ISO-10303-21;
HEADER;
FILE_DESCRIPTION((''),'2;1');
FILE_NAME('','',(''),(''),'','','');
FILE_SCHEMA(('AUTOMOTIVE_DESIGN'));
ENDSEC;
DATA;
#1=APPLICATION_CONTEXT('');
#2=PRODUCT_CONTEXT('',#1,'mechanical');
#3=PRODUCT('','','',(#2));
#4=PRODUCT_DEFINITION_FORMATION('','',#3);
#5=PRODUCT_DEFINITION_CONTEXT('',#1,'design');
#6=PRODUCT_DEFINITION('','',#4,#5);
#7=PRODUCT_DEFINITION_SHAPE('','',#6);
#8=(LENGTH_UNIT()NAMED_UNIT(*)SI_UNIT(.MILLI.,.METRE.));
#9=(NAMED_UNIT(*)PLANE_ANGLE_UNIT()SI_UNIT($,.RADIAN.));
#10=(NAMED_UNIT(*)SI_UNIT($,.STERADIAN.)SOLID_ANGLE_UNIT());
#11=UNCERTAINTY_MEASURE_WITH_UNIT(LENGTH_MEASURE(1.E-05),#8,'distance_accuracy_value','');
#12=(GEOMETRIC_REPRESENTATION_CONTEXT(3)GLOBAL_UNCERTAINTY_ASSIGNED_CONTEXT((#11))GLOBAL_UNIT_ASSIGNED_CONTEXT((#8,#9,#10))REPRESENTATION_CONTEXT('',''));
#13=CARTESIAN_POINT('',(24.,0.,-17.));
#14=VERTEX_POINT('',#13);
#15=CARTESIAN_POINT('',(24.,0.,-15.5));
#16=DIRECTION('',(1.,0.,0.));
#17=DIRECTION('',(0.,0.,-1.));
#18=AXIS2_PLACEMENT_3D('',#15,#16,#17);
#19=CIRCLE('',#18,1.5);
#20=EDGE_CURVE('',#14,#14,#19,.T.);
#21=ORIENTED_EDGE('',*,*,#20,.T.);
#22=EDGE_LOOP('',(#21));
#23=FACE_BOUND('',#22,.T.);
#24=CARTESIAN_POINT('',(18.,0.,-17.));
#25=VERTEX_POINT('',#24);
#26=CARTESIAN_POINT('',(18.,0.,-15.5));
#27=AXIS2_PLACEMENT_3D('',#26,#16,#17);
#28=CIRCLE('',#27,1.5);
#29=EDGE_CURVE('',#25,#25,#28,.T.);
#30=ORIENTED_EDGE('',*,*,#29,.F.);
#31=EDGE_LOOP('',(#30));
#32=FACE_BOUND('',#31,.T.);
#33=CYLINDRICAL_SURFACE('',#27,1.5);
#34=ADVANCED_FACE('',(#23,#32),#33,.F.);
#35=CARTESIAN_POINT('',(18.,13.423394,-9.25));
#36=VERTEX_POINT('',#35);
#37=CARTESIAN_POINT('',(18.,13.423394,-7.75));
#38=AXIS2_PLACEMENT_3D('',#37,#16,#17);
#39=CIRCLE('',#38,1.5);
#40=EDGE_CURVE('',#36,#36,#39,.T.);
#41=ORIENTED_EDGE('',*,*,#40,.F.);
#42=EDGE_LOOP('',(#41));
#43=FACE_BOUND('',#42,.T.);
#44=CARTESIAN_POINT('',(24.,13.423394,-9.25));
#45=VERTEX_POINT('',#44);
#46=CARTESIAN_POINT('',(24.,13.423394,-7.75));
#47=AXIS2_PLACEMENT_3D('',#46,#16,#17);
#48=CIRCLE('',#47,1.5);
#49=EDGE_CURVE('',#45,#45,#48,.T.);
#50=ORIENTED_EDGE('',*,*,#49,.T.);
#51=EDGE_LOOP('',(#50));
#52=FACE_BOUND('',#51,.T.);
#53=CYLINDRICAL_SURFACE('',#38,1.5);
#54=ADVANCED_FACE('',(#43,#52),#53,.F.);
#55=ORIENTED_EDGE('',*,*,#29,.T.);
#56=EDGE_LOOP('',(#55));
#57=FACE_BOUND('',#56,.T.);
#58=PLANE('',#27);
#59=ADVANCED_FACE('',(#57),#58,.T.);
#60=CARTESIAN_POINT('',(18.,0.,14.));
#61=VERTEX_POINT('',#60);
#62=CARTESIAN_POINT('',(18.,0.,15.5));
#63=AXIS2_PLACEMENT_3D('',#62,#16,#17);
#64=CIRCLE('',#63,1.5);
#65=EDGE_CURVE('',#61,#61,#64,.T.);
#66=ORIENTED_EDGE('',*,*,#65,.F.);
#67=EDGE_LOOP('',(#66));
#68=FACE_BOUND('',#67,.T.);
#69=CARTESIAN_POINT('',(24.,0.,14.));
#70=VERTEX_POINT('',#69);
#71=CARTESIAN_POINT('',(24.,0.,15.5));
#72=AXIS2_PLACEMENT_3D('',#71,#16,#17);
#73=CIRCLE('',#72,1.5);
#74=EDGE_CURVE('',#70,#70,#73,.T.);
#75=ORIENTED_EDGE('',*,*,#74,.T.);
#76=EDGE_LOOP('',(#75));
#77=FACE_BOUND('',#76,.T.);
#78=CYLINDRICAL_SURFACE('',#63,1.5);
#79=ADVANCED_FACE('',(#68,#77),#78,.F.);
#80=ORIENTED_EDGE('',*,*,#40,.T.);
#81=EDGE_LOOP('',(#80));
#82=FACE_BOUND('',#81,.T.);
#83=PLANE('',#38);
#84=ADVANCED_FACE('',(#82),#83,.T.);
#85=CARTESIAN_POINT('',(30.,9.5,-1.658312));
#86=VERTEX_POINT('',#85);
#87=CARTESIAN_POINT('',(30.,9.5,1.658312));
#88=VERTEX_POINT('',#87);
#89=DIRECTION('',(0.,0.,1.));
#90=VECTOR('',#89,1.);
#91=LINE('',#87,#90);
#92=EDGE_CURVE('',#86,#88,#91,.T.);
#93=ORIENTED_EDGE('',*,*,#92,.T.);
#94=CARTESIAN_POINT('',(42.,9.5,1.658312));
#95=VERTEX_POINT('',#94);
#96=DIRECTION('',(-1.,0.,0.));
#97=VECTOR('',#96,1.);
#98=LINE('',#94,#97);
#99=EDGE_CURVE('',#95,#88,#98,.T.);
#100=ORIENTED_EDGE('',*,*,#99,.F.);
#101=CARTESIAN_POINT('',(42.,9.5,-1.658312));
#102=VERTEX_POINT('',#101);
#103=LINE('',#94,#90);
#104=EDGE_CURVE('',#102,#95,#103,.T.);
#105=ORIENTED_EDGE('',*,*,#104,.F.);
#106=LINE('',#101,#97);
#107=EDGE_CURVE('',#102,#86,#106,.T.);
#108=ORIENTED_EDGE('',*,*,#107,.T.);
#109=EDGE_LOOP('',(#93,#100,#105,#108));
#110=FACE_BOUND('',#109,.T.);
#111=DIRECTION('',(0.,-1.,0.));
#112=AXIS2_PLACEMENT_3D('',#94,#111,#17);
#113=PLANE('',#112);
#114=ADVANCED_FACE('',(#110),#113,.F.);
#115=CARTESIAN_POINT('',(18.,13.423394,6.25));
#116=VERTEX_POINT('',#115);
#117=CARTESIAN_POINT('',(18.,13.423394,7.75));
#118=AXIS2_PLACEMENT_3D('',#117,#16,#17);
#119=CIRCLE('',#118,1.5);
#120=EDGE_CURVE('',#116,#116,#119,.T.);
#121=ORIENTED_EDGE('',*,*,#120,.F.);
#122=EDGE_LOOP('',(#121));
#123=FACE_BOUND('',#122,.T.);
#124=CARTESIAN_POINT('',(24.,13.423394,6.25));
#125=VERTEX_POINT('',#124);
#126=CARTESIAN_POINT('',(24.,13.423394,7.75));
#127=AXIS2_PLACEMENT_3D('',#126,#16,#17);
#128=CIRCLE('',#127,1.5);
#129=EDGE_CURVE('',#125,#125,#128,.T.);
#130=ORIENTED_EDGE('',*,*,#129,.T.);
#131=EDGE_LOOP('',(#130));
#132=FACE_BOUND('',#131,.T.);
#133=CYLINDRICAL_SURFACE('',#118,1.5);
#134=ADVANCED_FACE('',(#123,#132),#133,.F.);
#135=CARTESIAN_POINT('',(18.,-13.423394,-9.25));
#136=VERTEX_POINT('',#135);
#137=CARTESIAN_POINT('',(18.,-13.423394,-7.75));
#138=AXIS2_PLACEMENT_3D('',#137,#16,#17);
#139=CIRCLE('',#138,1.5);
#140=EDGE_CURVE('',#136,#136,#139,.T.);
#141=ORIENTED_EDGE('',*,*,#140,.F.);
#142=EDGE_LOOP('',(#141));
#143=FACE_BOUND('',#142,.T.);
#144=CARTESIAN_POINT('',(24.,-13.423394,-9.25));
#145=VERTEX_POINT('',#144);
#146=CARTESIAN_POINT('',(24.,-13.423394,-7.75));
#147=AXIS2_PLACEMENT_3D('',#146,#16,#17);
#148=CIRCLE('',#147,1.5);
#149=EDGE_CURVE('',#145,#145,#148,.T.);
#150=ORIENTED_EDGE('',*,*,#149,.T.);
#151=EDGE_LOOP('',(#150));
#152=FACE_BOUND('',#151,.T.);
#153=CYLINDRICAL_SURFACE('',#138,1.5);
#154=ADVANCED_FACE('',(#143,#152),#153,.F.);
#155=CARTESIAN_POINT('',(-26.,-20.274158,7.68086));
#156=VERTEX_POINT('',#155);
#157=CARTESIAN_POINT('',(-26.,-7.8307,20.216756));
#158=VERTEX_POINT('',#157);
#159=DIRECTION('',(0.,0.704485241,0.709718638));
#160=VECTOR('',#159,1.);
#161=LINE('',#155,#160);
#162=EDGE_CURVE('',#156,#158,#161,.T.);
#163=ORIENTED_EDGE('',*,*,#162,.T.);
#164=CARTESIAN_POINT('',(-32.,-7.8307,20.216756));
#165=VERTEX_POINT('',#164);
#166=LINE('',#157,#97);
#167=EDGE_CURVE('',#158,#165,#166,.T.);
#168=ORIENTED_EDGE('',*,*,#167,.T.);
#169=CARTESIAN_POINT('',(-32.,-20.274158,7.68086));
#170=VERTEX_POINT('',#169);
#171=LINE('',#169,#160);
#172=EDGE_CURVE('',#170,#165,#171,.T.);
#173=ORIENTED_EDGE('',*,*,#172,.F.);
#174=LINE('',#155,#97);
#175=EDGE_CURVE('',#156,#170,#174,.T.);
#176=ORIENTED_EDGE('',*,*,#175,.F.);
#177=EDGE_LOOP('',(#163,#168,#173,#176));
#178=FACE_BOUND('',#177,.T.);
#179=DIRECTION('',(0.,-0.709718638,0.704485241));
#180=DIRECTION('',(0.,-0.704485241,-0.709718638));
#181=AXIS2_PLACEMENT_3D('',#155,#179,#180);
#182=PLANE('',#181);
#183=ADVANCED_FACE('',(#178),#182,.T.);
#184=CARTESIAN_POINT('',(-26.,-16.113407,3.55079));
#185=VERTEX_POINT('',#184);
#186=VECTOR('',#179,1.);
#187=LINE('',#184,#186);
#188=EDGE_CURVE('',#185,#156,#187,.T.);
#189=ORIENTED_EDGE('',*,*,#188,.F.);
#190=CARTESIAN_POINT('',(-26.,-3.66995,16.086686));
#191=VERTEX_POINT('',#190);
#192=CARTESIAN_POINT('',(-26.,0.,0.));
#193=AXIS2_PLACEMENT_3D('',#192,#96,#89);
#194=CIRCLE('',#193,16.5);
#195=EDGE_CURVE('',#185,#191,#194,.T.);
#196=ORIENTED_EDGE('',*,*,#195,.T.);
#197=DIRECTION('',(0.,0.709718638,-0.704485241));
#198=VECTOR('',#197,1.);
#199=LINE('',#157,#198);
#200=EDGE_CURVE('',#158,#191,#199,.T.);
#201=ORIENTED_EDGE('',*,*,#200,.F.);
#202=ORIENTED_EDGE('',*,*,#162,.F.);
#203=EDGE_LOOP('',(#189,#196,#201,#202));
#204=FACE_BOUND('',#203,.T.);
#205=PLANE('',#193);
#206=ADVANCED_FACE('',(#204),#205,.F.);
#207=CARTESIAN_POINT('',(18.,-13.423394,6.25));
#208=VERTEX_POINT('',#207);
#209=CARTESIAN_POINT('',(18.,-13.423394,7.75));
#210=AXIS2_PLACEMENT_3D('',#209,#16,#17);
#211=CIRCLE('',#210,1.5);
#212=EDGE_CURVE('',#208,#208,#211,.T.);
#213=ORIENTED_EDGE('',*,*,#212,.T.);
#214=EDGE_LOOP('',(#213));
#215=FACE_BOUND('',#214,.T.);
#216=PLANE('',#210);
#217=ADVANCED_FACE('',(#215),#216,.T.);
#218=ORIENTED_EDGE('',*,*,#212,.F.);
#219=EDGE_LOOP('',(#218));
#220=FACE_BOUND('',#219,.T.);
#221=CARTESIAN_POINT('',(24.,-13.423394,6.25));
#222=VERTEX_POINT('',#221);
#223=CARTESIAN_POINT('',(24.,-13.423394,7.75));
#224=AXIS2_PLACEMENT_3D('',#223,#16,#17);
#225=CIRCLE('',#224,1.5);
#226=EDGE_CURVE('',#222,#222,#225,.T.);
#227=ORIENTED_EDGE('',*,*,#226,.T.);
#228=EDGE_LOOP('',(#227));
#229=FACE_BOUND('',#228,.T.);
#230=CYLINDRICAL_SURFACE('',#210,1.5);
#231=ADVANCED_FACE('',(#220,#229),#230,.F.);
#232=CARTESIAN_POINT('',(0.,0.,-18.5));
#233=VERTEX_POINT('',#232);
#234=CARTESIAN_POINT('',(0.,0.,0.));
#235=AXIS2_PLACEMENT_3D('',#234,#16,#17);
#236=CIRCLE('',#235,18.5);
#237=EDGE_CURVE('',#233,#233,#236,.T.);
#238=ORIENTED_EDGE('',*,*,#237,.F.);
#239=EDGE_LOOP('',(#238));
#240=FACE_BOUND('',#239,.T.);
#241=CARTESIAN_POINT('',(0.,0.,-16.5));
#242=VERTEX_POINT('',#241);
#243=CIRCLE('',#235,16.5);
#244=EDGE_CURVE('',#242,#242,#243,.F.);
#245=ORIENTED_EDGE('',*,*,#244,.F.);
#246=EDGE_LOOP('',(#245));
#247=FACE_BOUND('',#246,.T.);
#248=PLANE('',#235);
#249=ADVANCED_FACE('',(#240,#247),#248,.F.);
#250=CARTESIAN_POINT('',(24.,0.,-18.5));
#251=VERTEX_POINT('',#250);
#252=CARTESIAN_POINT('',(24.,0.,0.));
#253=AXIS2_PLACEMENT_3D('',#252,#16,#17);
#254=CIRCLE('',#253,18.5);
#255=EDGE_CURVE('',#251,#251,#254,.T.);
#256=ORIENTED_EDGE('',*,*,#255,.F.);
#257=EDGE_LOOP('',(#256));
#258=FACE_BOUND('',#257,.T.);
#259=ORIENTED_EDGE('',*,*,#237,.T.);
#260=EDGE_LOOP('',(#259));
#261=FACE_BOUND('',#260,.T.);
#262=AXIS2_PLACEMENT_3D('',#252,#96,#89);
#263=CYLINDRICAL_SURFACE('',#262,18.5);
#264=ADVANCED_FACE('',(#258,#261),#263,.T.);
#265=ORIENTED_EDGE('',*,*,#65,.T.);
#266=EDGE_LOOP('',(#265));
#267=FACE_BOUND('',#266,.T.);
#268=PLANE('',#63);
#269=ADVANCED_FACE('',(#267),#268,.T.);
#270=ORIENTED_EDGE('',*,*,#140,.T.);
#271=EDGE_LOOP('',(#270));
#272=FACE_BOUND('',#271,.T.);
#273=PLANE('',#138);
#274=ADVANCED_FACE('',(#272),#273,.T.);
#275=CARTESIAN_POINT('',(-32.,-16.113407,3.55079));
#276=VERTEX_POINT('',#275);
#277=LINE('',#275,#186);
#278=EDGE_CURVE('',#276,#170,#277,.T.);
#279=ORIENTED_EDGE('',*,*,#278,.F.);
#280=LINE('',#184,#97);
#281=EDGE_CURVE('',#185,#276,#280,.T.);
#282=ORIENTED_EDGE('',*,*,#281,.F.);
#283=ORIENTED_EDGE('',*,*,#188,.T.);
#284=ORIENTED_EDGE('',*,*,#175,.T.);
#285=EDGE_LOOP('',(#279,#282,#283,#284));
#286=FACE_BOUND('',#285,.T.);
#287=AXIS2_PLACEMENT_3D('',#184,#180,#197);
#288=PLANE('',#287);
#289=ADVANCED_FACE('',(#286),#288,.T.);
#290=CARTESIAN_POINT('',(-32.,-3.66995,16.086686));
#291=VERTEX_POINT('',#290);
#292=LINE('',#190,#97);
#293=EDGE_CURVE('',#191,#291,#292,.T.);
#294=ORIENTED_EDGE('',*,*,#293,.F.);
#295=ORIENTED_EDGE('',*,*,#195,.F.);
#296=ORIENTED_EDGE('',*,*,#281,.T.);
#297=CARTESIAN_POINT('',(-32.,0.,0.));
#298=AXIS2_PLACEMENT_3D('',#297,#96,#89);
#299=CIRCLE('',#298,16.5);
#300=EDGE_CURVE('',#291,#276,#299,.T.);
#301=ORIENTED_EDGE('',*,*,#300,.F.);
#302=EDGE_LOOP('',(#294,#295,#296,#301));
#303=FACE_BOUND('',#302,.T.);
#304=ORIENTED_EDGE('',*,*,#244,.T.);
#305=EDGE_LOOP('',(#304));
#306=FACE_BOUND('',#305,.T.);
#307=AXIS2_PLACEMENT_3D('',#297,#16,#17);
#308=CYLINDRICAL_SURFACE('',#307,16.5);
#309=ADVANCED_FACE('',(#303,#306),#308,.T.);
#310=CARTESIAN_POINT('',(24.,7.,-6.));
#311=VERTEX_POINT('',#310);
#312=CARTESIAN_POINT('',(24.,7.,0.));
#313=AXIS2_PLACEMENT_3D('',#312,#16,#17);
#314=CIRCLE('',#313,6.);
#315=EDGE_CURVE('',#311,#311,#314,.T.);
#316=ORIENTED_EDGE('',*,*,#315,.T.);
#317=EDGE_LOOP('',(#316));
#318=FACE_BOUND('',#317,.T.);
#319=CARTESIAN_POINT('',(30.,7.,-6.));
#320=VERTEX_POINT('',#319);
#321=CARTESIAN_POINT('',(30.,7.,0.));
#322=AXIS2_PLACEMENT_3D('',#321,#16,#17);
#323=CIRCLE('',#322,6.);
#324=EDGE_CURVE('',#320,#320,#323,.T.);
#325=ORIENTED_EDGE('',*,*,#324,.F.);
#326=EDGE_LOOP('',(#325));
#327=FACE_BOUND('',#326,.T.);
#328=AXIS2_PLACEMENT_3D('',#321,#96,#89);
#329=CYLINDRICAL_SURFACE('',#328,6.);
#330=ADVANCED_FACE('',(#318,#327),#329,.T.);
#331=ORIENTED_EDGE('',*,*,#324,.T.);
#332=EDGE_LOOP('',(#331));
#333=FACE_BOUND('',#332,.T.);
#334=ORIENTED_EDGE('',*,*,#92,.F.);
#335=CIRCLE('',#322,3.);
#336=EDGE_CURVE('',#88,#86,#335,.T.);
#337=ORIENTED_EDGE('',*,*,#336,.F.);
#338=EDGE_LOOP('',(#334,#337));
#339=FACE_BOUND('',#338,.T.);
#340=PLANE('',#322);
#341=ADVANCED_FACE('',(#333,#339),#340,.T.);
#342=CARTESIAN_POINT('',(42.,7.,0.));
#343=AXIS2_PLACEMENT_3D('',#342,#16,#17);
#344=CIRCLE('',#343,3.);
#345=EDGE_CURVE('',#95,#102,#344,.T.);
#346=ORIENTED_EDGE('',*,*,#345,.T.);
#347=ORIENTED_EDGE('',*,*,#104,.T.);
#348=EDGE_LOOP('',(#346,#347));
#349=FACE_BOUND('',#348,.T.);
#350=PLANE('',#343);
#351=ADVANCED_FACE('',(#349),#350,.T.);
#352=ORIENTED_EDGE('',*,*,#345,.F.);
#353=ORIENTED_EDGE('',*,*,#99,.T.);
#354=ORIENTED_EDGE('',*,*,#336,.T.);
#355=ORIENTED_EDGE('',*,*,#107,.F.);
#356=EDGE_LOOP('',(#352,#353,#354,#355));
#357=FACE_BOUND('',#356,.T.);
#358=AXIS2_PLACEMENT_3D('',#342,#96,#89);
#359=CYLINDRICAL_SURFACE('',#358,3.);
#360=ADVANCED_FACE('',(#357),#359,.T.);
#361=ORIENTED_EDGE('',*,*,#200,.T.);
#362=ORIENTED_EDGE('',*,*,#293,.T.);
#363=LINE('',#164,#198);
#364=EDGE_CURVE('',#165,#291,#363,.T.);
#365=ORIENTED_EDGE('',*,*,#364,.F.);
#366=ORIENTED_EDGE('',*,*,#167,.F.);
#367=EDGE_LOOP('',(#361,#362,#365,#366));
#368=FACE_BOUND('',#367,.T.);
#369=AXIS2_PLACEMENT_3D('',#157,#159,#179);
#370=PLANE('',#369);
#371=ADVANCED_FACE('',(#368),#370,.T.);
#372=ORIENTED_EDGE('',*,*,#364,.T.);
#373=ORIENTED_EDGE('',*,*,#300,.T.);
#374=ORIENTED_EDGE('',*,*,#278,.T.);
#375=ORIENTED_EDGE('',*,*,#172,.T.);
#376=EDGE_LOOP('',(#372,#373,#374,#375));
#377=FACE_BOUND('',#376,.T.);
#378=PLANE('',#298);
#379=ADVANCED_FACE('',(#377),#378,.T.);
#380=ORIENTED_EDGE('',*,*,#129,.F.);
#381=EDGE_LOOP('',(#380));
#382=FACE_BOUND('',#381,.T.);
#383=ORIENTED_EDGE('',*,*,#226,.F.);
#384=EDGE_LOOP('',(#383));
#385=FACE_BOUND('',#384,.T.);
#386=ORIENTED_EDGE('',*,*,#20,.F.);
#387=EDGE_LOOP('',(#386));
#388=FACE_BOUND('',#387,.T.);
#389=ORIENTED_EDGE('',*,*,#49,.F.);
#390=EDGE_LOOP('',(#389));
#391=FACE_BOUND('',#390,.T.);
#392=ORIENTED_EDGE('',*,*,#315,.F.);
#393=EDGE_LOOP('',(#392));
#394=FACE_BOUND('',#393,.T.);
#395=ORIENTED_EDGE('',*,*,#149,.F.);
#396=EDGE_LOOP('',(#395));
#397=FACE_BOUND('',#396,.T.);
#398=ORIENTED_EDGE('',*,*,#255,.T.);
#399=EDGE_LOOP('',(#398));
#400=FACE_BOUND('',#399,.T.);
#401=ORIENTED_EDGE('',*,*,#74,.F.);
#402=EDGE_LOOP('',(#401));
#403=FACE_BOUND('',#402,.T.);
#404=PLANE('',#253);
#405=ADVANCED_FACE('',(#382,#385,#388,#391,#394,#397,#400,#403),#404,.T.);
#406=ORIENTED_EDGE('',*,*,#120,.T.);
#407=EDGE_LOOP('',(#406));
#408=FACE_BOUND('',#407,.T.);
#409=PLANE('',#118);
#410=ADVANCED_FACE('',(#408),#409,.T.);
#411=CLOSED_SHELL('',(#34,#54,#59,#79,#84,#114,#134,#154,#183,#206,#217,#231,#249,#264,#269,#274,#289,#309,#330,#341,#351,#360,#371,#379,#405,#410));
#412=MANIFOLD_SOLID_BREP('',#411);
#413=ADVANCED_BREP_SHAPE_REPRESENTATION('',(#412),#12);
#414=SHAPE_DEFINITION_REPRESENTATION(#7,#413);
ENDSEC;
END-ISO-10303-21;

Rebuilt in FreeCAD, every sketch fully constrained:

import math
import FreeCAD as App
import Part
import Sketcher


def add_polygon(sketch, points):
    """Adds a closed chain of lines whose ends are joined by coincident constraints."""
    first, n = sketch.GeometryCount, len(points)
    for a, b in zip(points, points[1:] + points[:1]):
        sketch.addGeometry(Part.LineSegment(App.Vector(*a, 0), App.Vector(*b, 0)), False)
    for i in range(n):
        sketch.addConstraint(Sketcher.Constraint("Coincident", first + i, 2, first + (i + 1) % n, 1))

doc = App.newDocument("Part")
body = doc.addObject("PartDesign::Body", "Body")

# Sketch on YZ plane
sketch1 = body.newObject("Sketcher::SketchObject", "Sketch")
sketch1.AttachmentSupport = (doc.getObject("YZ_Plane"), [""])
sketch1.MapMode = "FlatFace"
sketch1.addGeometry(Part.Circle(App.Vector(0, 0, 0), App.Vector(0, 0, 1), 18), False)
sketch1.addConstraint(Sketcher.Constraint("Coincident", 0, 3, -1, 1))
sketch1.addConstraint(Sketcher.Constraint("Diameter", 0, 37.0))
pad1 = body.newObject("PartDesign::Pad", "Pad")
pad1.Profile = sketch1
pad1.Length = 24

# Sketch on YZ plane
sketch2 = body.newObject("Sketcher::SketchObject", "Sketch001")
sketch2.AttachmentSupport = (doc.getObject("YZ_Plane"), [""])
sketch2.MapMode = "FlatFace"
sketch2.addGeometry(Part.Circle(App.Vector(0, 0, 0), App.Vector(0, 0, 1), 16), False)
sketch2.addConstraint(Sketcher.Constraint("Coincident", 0, 3, -1, 1))
sketch2.addConstraint(Sketcher.Constraint("Diameter", 0, 33.0))
pad2 = body.newObject("PartDesign::Pad", "Pad001")
pad2.Profile = sketch2
pad2.Length = 32
pad2.Reversed = True

# Sketch on YZ plane
sketch3 = body.newObject("Sketcher::SketchObject", "Sketch002")
sketch3.AttachmentSupport = (doc.getObject("YZ_Plane"), [""])
sketch3.MapMode = "FlatFace"
sketch3.AttachmentOffset = App.Placement(App.Vector(0, 0, 24), App.Rotation())
sketch3.addGeometry(Part.Circle(App.Vector(0, -15.5, 0), App.Vector(0, 0, 1), 1.5), False)
sketch3.addGeometry(Part.Circle(App.Vector(-13.4, -7.8, 0), App.Vector(0, 0, 1), 1.5), False)
sketch3.addGeometry(Part.Circle(App.Vector(-13.4, 7.8, 0), App.Vector(0, 0, 1), 1.5), False)
sketch3.addGeometry(Part.Circle(App.Vector(0, 15.5, 0), App.Vector(0, 0, 1), 1.5), False)
sketch3.addGeometry(Part.Circle(App.Vector(13.4, 7.8, 0), App.Vector(0, 0, 1), 1.5), False)
sketch3.addGeometry(Part.Circle(App.Vector(13.4, -7.8, 0), App.Vector(0, 0, 1), 1.5), False)
sketch3.addConstraint(Sketcher.Constraint("Equal", 0, 1))
sketch3.addConstraint(Sketcher.Constraint("Equal", 1, 2))
sketch3.addConstraint(Sketcher.Constraint("Equal", 2, 3))
sketch3.addConstraint(Sketcher.Constraint("Equal", 3, 4))
sketch3.addConstraint(Sketcher.Constraint("Equal", 4, 5))
sketch3.addConstraint(Sketcher.Constraint("Symmetric", 0, 3, 3, 3, -1, 1))
sketch3.addConstraint(Sketcher.Constraint("Symmetric", 1, 3, 4, 3, -1, 1))
sketch3.addConstraint(Sketcher.Constraint("Symmetric", 2, 3, 5, 3, -1, 1))
sketch3.addConstraint(Sketcher.Constraint("Symmetric", 2, 3, 4, 3, -2))
sketch3.addConstraint(Sketcher.Constraint("PointOnObject", 0, 3, -2))
sketch3.addConstraint(Sketcher.Constraint("Diameter", 0, 3.0))
sketch3.addConstraint(Sketcher.Constraint("DistanceY", 0, 3, 3, 3, 31.0))
sketch3.addConstraint(Sketcher.Constraint("DistanceY", 1, 3, 2, 3, 15.5))
sketch3.addConstraint(Sketcher.Constraint("DistanceX", 1, 3, -1, 1, 13.423394))
pocket1 = body.newObject("PartDesign::Pocket", "Pocket")
pocket1.Profile = sketch3
pocket1.Length = 6

# Sketch on YZ plane
sketch4 = body.newObject("Sketcher::SketchObject", "Sketch003")
sketch4.AttachmentSupport = (doc.getObject("YZ_Plane"), [""])
sketch4.MapMode = "FlatFace"
sketch4.AttachmentOffset = App.Placement(App.Vector(0, 0, 24), App.Rotation())
sketch4.addGeometry(Part.Circle(App.Vector(7, 0, 0), App.Vector(0, 0, 1), 6), False)
sketch4.addConstraint(Sketcher.Constraint("PointOnObject", 0, 3, -1))
sketch4.addConstraint(Sketcher.Constraint("Diameter", 0, 12.0))
sketch4.addConstraint(Sketcher.Constraint("DistanceX", -1, 1, 0, 3, 7.0))
pad3 = body.newObject("PartDesign::Pad", "Pad002")
pad3.Profile = sketch4
pad3.Length = 6

# Sketch on YZ plane
sketch5 = body.newObject("Sketcher::SketchObject", "Sketch004")
sketch5.AttachmentSupport = (doc.getObject("YZ_Plane"), [""])
sketch5.MapMode = "FlatFace"
sketch5.AttachmentOffset = App.Placement(App.Vector(0, 0, 30), App.Rotation())
sketch5.addGeometry(Part.LineSegment(App.Vector(9.5, -1.7, 0), App.Vector(9.5, 1.7, 0)), False)
sketch5.addGeometry(Part.ArcOfCircle(Part.Circle(App.Vector(7, 0, 0), App.Vector(0, 0, 1), 3), math.radians(34), math.radians(326)), False)
sketch5.addConstraint(Sketcher.Constraint("Coincident", 0, 1, 1, 2))
sketch5.addConstraint(Sketcher.Constraint("Coincident", 1, 1, 0, 2))
sketch5.addConstraint(Sketcher.Constraint("Vertical", 0))
sketch5.addConstraint(Sketcher.Constraint("PointOnObject", 1, 3, -1))
sketch5.addConstraint(Sketcher.Constraint("Radius", 1, 3.0))
sketch5.addConstraint(Sketcher.Constraint("DistanceX", -1, 1, 1, 3, 7.0))
sketch5.addConstraint(Sketcher.Constraint("DistanceX", -1, 1, 0, 1, 9.5))
pad4 = body.newObject("PartDesign::Pad", "Pad003")
pad4.Profile = sketch5
pad4.Length = 12

# Sketch on YZ plane
sketch6 = body.newObject("Sketcher::SketchObject", "Sketch005")
sketch6.AttachmentSupport = (doc.getObject("YZ_Plane"), [""])
sketch6.MapMode = "FlatFace"
sketch6.AttachmentOffset = App.Placement(App.Vector(0, 0, -32), App.Rotation())
add_polygon(sketch6, [(-20, 8), (-8, 20), (-4, 16), (-16, 4)])  # lines 0-3
sketch6.addConstraint(Sketcher.Constraint("Perpendicular", 0, 1))
sketch6.addConstraint(Sketcher.Constraint("Perpendicular", 1, 2))
sketch6.addConstraint(Sketcher.Constraint("Perpendicular", 2, 3))
sketch6.addConstraint(Sketcher.Constraint("DistanceX", 0, 2, -1, 1, 7.8307))
sketch6.addConstraint(Sketcher.Constraint("Distance", 0, 17.663191))
sketch6.addConstraint(Sketcher.Constraint("DistanceX", 1, 2, -1, 1, 3.66995))
sketch6.addConstraint(Sketcher.Constraint("DistanceY", -1, 1, 2, 2, 3.55079))
sketch6.addConstraint(Sketcher.Constraint("DistanceY", -1, 1, 3, 2, 7.68086))
pad5 = body.newObject("PartDesign::Pad", "Pad004")
pad5.Profile = sketch6
pad5.Length = 6

doc.recompute()
